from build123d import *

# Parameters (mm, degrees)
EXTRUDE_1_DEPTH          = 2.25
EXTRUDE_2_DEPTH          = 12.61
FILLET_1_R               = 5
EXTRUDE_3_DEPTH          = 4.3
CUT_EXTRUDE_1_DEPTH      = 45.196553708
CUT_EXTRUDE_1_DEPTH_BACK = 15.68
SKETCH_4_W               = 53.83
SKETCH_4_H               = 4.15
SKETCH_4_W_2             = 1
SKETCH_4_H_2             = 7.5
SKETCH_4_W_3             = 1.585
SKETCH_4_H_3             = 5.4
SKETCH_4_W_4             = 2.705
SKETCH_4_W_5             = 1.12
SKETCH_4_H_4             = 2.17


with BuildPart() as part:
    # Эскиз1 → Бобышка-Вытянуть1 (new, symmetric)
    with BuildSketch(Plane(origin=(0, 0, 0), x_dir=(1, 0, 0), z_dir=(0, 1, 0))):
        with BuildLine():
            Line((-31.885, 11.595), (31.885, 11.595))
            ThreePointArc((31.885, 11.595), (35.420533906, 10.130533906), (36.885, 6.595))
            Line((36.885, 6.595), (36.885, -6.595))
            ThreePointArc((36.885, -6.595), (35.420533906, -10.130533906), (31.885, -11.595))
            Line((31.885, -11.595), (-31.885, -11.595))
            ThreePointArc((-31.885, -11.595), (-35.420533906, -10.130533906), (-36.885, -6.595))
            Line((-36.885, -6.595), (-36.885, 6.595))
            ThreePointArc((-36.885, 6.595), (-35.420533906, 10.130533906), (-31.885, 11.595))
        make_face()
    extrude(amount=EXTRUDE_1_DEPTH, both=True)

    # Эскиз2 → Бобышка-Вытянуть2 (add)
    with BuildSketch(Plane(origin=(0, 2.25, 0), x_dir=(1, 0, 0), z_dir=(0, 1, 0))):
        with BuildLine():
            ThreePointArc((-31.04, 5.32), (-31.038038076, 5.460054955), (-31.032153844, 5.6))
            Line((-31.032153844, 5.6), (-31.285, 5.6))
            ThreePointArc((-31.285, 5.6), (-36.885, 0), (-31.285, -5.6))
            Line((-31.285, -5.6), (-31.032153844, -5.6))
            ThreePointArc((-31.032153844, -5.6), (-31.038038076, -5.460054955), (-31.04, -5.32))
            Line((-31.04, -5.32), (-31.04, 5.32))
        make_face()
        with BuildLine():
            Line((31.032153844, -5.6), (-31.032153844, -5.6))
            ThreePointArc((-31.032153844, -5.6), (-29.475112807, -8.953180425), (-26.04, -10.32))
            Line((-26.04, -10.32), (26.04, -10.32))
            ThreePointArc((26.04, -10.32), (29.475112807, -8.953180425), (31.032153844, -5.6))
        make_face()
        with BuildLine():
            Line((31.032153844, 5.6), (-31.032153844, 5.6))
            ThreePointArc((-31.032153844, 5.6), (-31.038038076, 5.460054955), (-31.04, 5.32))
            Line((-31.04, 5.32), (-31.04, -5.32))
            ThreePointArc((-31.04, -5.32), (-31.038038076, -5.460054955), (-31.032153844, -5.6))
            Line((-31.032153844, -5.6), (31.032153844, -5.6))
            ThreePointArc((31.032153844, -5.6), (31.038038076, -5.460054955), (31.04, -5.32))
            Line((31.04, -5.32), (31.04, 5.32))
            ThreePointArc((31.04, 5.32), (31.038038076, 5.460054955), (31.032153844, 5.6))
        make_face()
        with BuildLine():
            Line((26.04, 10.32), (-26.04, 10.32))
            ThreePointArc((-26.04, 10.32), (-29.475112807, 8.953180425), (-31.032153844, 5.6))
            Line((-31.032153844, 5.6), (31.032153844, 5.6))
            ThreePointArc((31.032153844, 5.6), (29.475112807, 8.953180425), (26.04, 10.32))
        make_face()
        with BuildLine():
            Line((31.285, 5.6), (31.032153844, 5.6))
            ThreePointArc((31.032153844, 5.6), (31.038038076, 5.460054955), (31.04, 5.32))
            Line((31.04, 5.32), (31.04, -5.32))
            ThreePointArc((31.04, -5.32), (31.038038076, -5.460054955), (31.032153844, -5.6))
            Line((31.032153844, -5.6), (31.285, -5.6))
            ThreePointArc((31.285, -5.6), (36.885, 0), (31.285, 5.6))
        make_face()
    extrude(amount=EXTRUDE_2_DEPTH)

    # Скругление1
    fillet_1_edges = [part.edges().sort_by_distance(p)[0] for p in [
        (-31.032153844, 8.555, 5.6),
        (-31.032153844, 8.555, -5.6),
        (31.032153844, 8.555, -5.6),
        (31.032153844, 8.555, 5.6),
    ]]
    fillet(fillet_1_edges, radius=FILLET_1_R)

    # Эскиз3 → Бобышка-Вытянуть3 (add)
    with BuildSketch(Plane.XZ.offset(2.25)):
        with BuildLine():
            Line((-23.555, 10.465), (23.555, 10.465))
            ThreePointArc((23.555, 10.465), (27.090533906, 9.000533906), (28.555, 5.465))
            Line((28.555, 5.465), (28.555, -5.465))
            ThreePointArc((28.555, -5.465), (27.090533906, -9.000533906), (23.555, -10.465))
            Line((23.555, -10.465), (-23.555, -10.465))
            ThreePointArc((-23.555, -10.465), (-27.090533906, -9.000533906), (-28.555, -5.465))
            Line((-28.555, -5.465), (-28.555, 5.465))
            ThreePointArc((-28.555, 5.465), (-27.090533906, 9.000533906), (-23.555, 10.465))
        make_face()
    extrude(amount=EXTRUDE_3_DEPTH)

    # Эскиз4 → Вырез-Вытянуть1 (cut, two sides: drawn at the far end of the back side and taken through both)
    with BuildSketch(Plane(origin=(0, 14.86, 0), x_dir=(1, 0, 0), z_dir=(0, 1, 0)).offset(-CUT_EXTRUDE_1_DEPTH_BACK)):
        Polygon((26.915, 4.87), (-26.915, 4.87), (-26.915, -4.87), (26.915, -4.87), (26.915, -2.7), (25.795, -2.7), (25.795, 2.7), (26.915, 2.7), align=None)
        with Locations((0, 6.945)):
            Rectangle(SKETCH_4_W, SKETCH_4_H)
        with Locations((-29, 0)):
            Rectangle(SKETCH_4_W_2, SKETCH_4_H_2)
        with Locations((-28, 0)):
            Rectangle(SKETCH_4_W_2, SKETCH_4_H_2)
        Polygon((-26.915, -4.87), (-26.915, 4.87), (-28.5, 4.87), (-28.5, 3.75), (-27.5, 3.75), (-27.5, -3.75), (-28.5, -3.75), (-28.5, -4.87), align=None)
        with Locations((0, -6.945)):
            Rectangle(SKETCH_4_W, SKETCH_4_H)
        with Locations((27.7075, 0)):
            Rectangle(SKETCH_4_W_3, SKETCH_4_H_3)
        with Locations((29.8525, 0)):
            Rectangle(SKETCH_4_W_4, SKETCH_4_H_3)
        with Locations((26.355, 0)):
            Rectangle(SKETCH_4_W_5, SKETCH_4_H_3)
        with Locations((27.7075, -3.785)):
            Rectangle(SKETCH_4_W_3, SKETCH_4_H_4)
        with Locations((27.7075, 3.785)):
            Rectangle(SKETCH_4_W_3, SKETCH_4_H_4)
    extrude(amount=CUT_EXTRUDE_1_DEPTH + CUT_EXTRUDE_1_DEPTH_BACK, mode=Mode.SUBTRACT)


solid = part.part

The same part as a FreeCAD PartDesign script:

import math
import FreeCAD as App
import Part
import Sketcher
from FreeCAD import Vector


def edges_at(feature, points):
    """Names of the edges that pass closest to the given points."""
    edges = feature.Shape.Edges
    near = lambda p: min(range(len(edges)), key=lambda i: edges[i].distToShape(Part.Vertex(*p))[0])
    return sorted({f"Edge{near(p) + 1}" for p in points})

doc = App.newDocument("Part")
body = doc.addObject("PartDesign::Body", "Body")

sketch1 = body.newObject("Sketcher::SketchObject", "Sketch")
sketch1.AttachmentSupport = (doc.getObject("XZ_Plane"), [""])
sketch1.MapMode = "FlatFace"
sketch1.addGeometry(Part.LineSegment(Vector(31.885, -11.595, 0), Vector(-31.885, -11.595, 0)), False)
sketch1.addGeometry(Part.ArcOfCircle(Part.Circle(Vector(-31.885, -6.595, 0), Vector(0, 0, 1), 5), math.radians(180), math.radians(270)), False)
sketch1.addGeometry(Part.LineSegment(Vector(-36.885, -6.595, 0), Vector(-36.885, 6.595, 0)), False)
sketch1.addGeometry(Part.ArcOfCircle(Part.Circle(Vector(-31.885, 6.595, 0), Vector(0, 0, 1), 5), math.radians(90), math.radians(180)), False)
sketch1.addGeometry(Part.LineSegment(Vector(-31.885, 11.595, 0), Vector(31.885, 11.595, 0)), False)
sketch1.addGeometry(Part.ArcOfCircle(Part.Circle(Vector(31.885, 6.595, 0), Vector(0, 0, 1), 5), math.radians(0), math.radians(90)), False)
sketch1.addGeometry(Part.LineSegment(Vector(36.885, 6.595, 0), Vector(36.885, -6.595, 0)), False)
sketch1.addGeometry(Part.ArcOfCircle(Part.Circle(Vector(31.885, -6.595, 0), Vector(0, 0, 1), 5), math.radians(-90), math.radians(0)), False)
sketch1.addConstraint(Sketcher.Constraint("Tangent", 0, 2, 1, 2))
sketch1.addConstraint(Sketcher.Constraint("Tangent", 1, 1, 2, 1))
sketch1.addConstraint(Sketcher.Constraint("Tangent", 2, 2, 3, 2))
sketch1.addConstraint(Sketcher.Constraint("Tangent", 3, 1, 4, 1))
sketch1.addConstraint(Sketcher.Constraint("Tangent", 4, 2, 5, 2))
sketch1.addConstraint(Sketcher.Constraint("Tangent", 5, 1, 6, 1))
sketch1.addConstraint(Sketcher.Constraint("Tangent", 6, 2, 7, 2))
sketch1.addConstraint(Sketcher.Constraint("Tangent", 7, 1, 0, 1))
sketch1.addConstraint(Sketcher.Constraint("Horizontal", 0))
sketch1.addConstraint(Sketcher.Constraint("Vertical", 2))
sketch1.addConstraint(Sketcher.Constraint("Horizontal", 4))
sketch1.addConstraint(Sketcher.Constraint("Vertical", 6))
sketch1.addConstraint(Sketcher.Constraint("Equal", 1, 3))
sketch1.addConstraint(Sketcher.Constraint("Equal", 3, 5))
sketch1.addConstraint(Sketcher.Constraint("Equal", 5, 7))
sketch1.addConstraint(Sketcher.Constraint("Symmetric", 1, 3, 5, 3, -1, 1))
sketch1.addConstraint(Sketcher.Constraint("Radius", 1, 5.0))
sketch1.addConstraint(Sketcher.Constraint("DistanceX", 0, 2, 0, 1, 63.77))
sketch1.addConstraint(Sketcher.Constraint("DistanceY", 2, 1, 2, 2, 13.19))
pad1 = body.newObject("PartDesign::Pad", "Pad")
pad1.Profile = sketch1
pad1.Length = 4.5
pad1.Midplane = True

sketch2 = body.newObject("Sketcher::SketchObject", "Sketch001")
sketch2.AttachmentSupport = (doc.getObject("XZ_Plane"), [""])
sketch2.MapMode = "FlatFace"
sketch2.AttachmentOffset = App.Placement(Vector(0, 0, -2.25), App.Rotation())
sketch2.addGeometry(Part.ArcOfCircle(Part.Circle(Vector(-31.285, 0, 0), Vector(0, 0, 1), 5.6), math.radians(90), math.radians(270)), False)
sketch2.addGeometry(Part.LineSegment(Vector(-31.285, 5.6, 0), Vector(-31.032154, 5.6, 0)), False)
sketch2.addGeometry(Part.ArcOfCircle(Part.Circle(Vector(-26.04, 5.32, 0), Vector(0, 0, 1), 5), math.radians(90), math.radians(176.789757)), False)
sketch2.addGeometry(Part.LineSegment(Vector(-26.04, 10.32, 0), Vector(26.04, 10.32, 0)), False)
sketch2.addGeometry(Part.ArcOfCircle(Part.Circle(Vector(26.04, 5.32, 0), Vector(0, 0, 1), 5), math.radians(3.210243), math.radians(90)), False)
sketch2.addGeometry(Part.LineSegment(Vector(31.032154, 5.6, 0), Vector(31.285, 5.6, 0)), False)
sketch2.addGeometry(Part.ArcOfCircle(Part.Circle(Vector(31.285, 0, 0), Vector(0, 0, 1), 5.6), math.radians(-90), math.radians(90)), False)
sketch2.addGeometry(Part.LineSegment(Vector(31.285, -5.6, 0), Vector(31.032154, -5.6, 0)), False)
sketch2.addGeometry(Part.ArcOfCircle(Part.Circle(Vector(26.04, -5.32, 0), Vector(0, 0, 1), 5), math.radians(-90), math.radians(-3.210243)), False)
sketch2.addGeometry(Part.LineSegment(Vector(26.04, -10.32, 0), Vector(-26.04, -10.32, 0)), False)
sketch2.addGeometry(Part.ArcOfCircle(Part.Circle(Vector(-26.04, -5.32, 0), Vector(0, 0, 1), 5), math.radians(-176.789757), math.radians(-90)), False)
sketch2.addGeometry(Part.LineSegment(Vector(-31.032154, -5.6, 0), Vector(-31.285, -5.6, 0)), False)
sketch2.addConstraint(Sketcher.Constraint("Tangent", 0, 1, 1, 1))
sketch2.addConstraint(Sketcher.Constraint("Coincident", 1, 2, 2, 2))
sketch2.addConstraint(Sketcher.Constraint("Tangent", 2, 1, 3, 1))
sketch2.addConstraint(Sketcher.Constraint("Tangent", 3, 2, 4, 2))
sketch2.addConstraint(Sketcher.Constraint("Coincident", 4, 1, 5, 1))
sketch2.addConstraint(Sketcher.Constraint("Tangent", 5, 2, 6, 2))
sketch2.addConstraint(Sketcher.Constraint("Tangent", 6, 1, 7, 1))
sketch2.addConstraint(Sketcher.Constraint("Coincident", 7, 2, 8, 2))
sketch2.addConstraint(Sketcher.Constraint("Tangent", 8, 1, 9, 1))
sketch2.addConstraint(Sketcher.Constraint("Tangent", 9, 2, 10, 2))
sketch2.addConstraint(Sketcher.Constraint("Coincident", 10, 1, 11, 1))
sketch2.addConstraint(Sketcher.Constraint("Tangent", 11, 2, 0, 2))
sketch2.addConstraint(Sketcher.Constraint("Horizontal", 1))
sketch2.addConstraint(Sketcher.Constraint("Horizontal", 3))
sketch2.addConstraint(Sketcher.Constraint("Horizontal", 5))
sketch2.addConstraint(Sketcher.Constraint("Horizontal", 7))
sketch2.addConstraint(Sketcher.Constraint("Horizontal", 9))
sketch2.addConstraint(Sketcher.Constraint("Horizontal", 11))
sketch2.addConstraint(Sketcher.Constraint("Equal", 2, 4))
sketch2.addConstraint(Sketcher.Constraint("Equal", 0, 6))
sketch2.addConstraint(Sketcher.Constraint("Equal", 4, 8))
sketch2.addConstraint(Sketcher.Constraint("Equal", 8, 10))
sketch2.addConstraint(Sketcher.Constraint("Symmetric", 0, 3, 6, 3, -1, 1))
sketch2.addConstraint(Sketcher.Constraint("Symmetric", 2, 3, 8, 3, -1, 1))
sketch2.addConstraint(Sketcher.Constraint("Symmetric", 1, 2, 4, 1, -2))
sketch2.addConstraint(Sketcher.Constraint("Vertical", 2, 3, 10, 3))
sketch2.addConstraint(Sketcher.Constraint("Radius", 2, 5.0))
sketch2.addConstraint(Sketcher.Constraint("Radius", 0, 5.6))
sketch2.addConstraint(Sketcher.Constraint("DistanceX", 3, 1, 3, 2, 52.08))
sketch2.addConstraint(Sketcher.Constraint("DistanceY", -1, 1, 2, 3, 5.32))
sketch2.addConstraint(Sketcher.Constraint("DistanceX", 0, 3, 6, 3, 62.57))
pad2 = body.newObject("PartDesign::Pad", "Pad001")
pad2.Profile = sketch2
pad2.Length = 12.61
pad2.Reversed = True
doc.recompute()

fillet = body.newObject("PartDesign::Fillet", "Fillet")
fillet.Base = (pad2, edges_at(pad2, [
    (-31.032, 8.555, 5.6),
    (-31.032, 8.555, -5.6),
    (31.032, 8.555, -5.6),
    (31.032, 8.555, 5.6),
]))
fillet.Radius = 5

sketch3 = body.newObject("Sketcher::SketchObject", "Sketch002")
sketch3.AttachmentSupport = (doc.getObject("XZ_Plane"), [""])
sketch3.MapMode = "FlatFace"
sketch3.AttachmentOffset = App.Placement(Vector(0, 0, 2.25), App.Rotation())
sketch3.addGeometry(Part.LineSegment(Vector(23.555, 10.465, 0), Vector(-23.555, 10.465, 0)), False)
sketch3.addGeometry(Part.ArcOfCircle(Part.Circle(Vector(-23.555, 5.465, 0), Vector(0, 0, 1), 5), math.radians(90), math.radians(180)), False)
sketch3.addGeometry(Part.LineSegment(Vector(-28.555, 5.465, 0), Vector(-28.555, -5.465, 0)), False)
sketch3.addGeometry(Part.ArcOfCircle(Part.Circle(Vector(-23.555, -5.465, 0), Vector(0, 0, 1), 5), math.radians(180), math.radians(270)), False)
sketch3.addGeometry(Part.LineSegment(Vector(-23.555, -10.465, 0), Vector(23.555, -10.465, 0)), False)
sketch3.addGeometry(Part.ArcOfCircle(Part.Circle(Vector(23.555, -5.465, 0), Vector(0, 0, 1), 5), math.radians(-90), math.radians(0)), False)
sketch3.addGeometry(Part.LineSegment(Vector(28.555, -5.465, 0), Vector(28.555, 5.465, 0)), False)
sketch3.addGeometry(Part.ArcOfCircle(Part.Circle(Vector(23.555, 5.465, 0), Vector(0, 0, 1), 5), math.radians(0), math.radians(90)), False)
sketch3.addConstraint(Sketcher.Constraint("Tangent", 0, 2, 1, 1))
sketch3.addConstraint(Sketcher.Constraint("Tangent", 1, 2, 2, 1))
sketch3.addConstraint(Sketcher.Constraint("Tangent", 2, 2, 3, 1))
sketch3.addConstraint(Sketcher.Constraint("Tangent", 3, 2, 4, 1))
sketch3.addConstraint(Sketcher.Constraint("Tangent", 4, 2, 5, 1))
sketch3.addConstraint(Sketcher.Constraint("Tangent", 5, 2, 6, 1))
sketch3.addConstraint(Sketcher.Constraint("Tangent", 6, 2, 7, 1))
sketch3.addConstraint(Sketcher.Constraint("Tangent", 7, 2, 0, 1))
sketch3.addConstraint(Sketcher.Constraint("Horizontal", 0))
sketch3.addConstraint(Sketcher.Constraint("Vertical", 2))
sketch3.addConstraint(Sketcher.Constraint("Horizontal", 4))
sketch3.addConstraint(Sketcher.Constraint("Vertical", 6))
sketch3.addConstraint(Sketcher.Constraint("Equal", 1, 3))
sketch3.addConstraint(Sketcher.Constraint("Equal", 3, 5))
sketch3.addConstraint(Sketcher.Constraint("Equal", 5, 7))
sketch3.addConstraint(Sketcher.Constraint("Symmetric", 1, 3, 5, 3, -1, 1))
sketch3.addConstraint(Sketcher.Constraint("Radius", 1, 5.0))
sketch3.addConstraint(Sketcher.Constraint("DistanceX", 0, 2, 0, 1, 47.11))
sketch3.addConstraint(Sketcher.Constraint("DistanceY", 2, 2, 2, 1, 10.93))
pad3 = body.newObject("PartDesign::Pad", "Pad002")
pad3.Profile = sketch3
pad3.Length = 4.3

sketch4 = body.newObject("Sketcher::SketchObject", "Sketch003")
sketch4.AttachmentSupport = (doc.getObject("XZ_Plane"), [""])
sketch4.MapMode = "FlatFace"
sketch4.AttachmentOffset = App.Placement(Vector(0, 0, -14.86), App.Rotation())
sketch4.addGeometry(Part.LineSegment(Vector(26.915, -4.87, 0), Vector(26.915, -9.02, 0)), False)
sketch4.addGeometry(Part.LineSegment(Vector(26.915, -9.02, 0), Vector(-26.915, -9.02, 0)), False)
sketch4.addGeometry(Part.LineSegment(Vector(-26.915, -9.02, 0), Vector(-26.915, -4.87, 0)), False)
sketch4.addGeometry(Part.LineSegment(Vector(-26.915, -4.87, 0), Vector(-28.5, -4.87, 0)), False)
sketch4.addGeometry(Part.LineSegment(Vector(-28.5, -4.87, 0), Vector(-28.5, -3.75, 0)), False)
sketch4.addGeometry(Part.LineSegment(Vector(-28.5, -3.75, 0), Vector(-29.5, -3.75, 0)), False)
sketch4.addGeometry(Part.LineSegment(Vector(-29.5, -3.75, 0), Vector(-29.5, 3.75, 0)), False)
sketch4.addGeometry(Part.LineSegment(Vector(-29.5, 3.75, 0), Vector(-28.5, 3.75, 0)), False)
sketch4.addGeometry(Part.LineSegment(Vector(-28.5, 3.75, 0), Vector(-28.5, 4.87, 0)), False)
sketch4.addGeometry(Part.LineSegment(Vector(-28.5, 4.87, 0), Vector(-26.915, 4.87, 0)), False)
sketch4.addGeometry(Part.LineSegment(Vector(-26.915, 4.87, 0), Vector(-26.915, 9.02, 0)), False)
sketch4.addGeometry(Part.LineSegment(Vector(-26.915, 9.02, 0), Vector(26.915, 9.02, 0)), False)
sketch4.addGeometry(Part.LineSegment(Vector(26.915, 9.02, 0), Vector(26.915, 4.87, 0)), False)
sketch4.addGeometry(Part.LineSegment(Vector(26.915, 4.87, 0), Vector(28.5, 4.87, 0)), False)
sketch4.addGeometry(Part.LineSegment(Vector(28.5, 4.87, 0), Vector(28.5, 2.7, 0)), False)
sketch4.addGeometry(Part.LineSegment(Vector(28.5, 2.7, 0), Vector(31.205, 2.7, 0)), False)
sketch4.addGeometry(Part.LineSegment(Vector(31.205, 2.7, 0), Vector(31.205, -2.7, 0)), False)
sketch4.addGeometry(Part.LineSegment(Vector(31.205, -2.7, 0), Vector(28.5, -2.7, 0)), False)
sketch4.addGeometry(Part.LineSegment(Vector(28.5, -2.7, 0), Vector(28.5, -4.87, 0)), False)
sketch4.addGeometry(Part.LineSegment(Vector(28.5, -4.87, 0), Vector(26.915, -4.87, 0)), False)
sketch4.addConstraint(Sketcher.Constraint("Coincident", 0, 2, 1, 1))
sketch4.addConstraint(Sketcher.Constraint("Coincident", 1, 2, 2, 1))
sketch4.addConstraint(Sketcher.Constraint("Coincident", 2, 2, 3, 1))
sketch4.addConstraint(Sketcher.Constraint("Coincident", 3, 2, 4, 1))
sketch4.addConstraint(Sketcher.Constraint("Coincident", 4, 2, 5, 1))
sketch4.addConstraint(Sketcher.Constraint("Coincident", 5, 2, 6, 1))
sketch4.addConstraint(Sketcher.Constraint("Coincident", 6, 2, 7, 1))
sketch4.addConstraint(Sketcher.Constraint("Coincident", 7, 2, 8, 1))
sketch4.addConstraint(Sketcher.Constraint("Coincident", 8, 2, 9, 1))
sketch4.addConstraint(Sketcher.Constraint("Coincident", 9, 2, 10, 1))
sketch4.addConstraint(Sketcher.Constraint("Coincident", 10, 2, 11, 1))
sketch4.addConstraint(Sketcher.Constraint("Coincident", 11, 2, 12, 1))
sketch4.addConstraint(Sketcher.Constraint("Coincident", 12, 2, 13, 1))
sketch4.addConstraint(Sketcher.Constraint("Coincident", 13, 2, 14, 1))
sketch4.addConstraint(Sketcher.Constraint("Coincident", 14, 2, 15, 1))
sketch4.addConstraint(Sketcher.Constraint("Coincident", 15, 2, 16, 1))
sketch4.addConstraint(Sketcher.Constraint("Coincident", 16, 2, 17, 1))
sketch4.addConstraint(Sketcher.Constraint("Coincident", 17, 2, 18, 1))
sketch4.addConstraint(Sketcher.Constraint("Coincident", 18, 2, 19, 1))
sketch4.addConstraint(Sketcher.Constraint("Coincident", 19, 2, 0, 1))
sketch4.addConstraint(Sketcher.Constraint("Vertical", 0))
sketch4.addConstraint(Sketcher.Constraint("Horizontal", 1))
sketch4.addConstraint(Sketcher.Constraint("Vertical", 2))
sketch4.addConstraint(Sketcher.Constraint("Horizontal", 3))
sketch4.addConstraint(Sketcher.Constraint("Vertical", 4))
sketch4.addConstraint(Sketcher.Constraint("Horizontal", 5))
sketch4.addConstraint(Sketcher.Constraint("Vertical", 6))
sketch4.addConstraint(Sketcher.Constraint("Horizontal", 7))
sketch4.addConstraint(Sketcher.Constraint("Vertical", 8))
sketch4.addConstraint(Sketcher.Constraint("Horizontal", 9))
sketch4.addConstraint(Sketcher.Constraint("Vertical", 10))
sketch4.addConstraint(Sketcher.Constraint("Horizontal", 11))
sketch4.addConstraint(Sketcher.Constraint("Vertical", 12))
sketch4.addConstraint(Sketcher.Constraint("Horizontal", 13))
sketch4.addConstraint(Sketcher.Constraint("Vertical", 14))
sketch4.addConstraint(Sketcher.Constraint("Horizontal", 15))
sketch4.addConstraint(Sketcher.Constraint("Vertical", 16))
sketch4.addConstraint(Sketcher.Constraint("Horizontal", 17))
sketch4.addConstraint(Sketcher.Constraint("Vertical", 18))
sketch4.addConstraint(Sketcher.Constraint("Horizontal", 19))
sketch4.addConstraint(Sketcher.Constraint("Symmetric", 0, 2, 10, 2, -1, 1))
sketch4.addConstraint(Sketcher.Constraint("Symmetric", 2, 2, 12, 2, -1, 1))
sketch4.addConstraint(Sketcher.Constraint("Symmetric", 8, 2, 18, 2, -1, 1))
sketch4.addConstraint(Sketcher.Constraint("Symmetric", 9, 2, 12, 2, -2))
sketch4.addConstraint(Sketcher.Constraint("Symmetric", 4, 2, 7, 2, -1))
sketch4.addConstraint(Sketcher.Constraint("Symmetric", 14, 2, 17, 2, -1))
sketch4.addConstraint(Sketcher.Constraint("DistanceX", 5, 2, 5, 1, 1.0))
sketch4.addConstraint(Sketcher.Constraint("DistanceY", 6, 1, 6, 2, 7.5))
sketch4.addConstraint(Sketcher.Constraint("DistanceY", 16, 2, 16, 1, 5.4))
sketch4.addConstraint(Sketcher.Constraint("DistanceX", 1, 2, 1, 1, 53.83))
sketch4.addConstraint(Sketcher.Constraint("DistanceY", 0, 2, 0, 1, 4.15))
sketch4.addConstraint(Sketcher.Constraint("DistanceY", 4, 1, 4, 2, 1.12))
sketch4.addConstraint(Sketcher.Constraint("DistanceX", 3, 2, -1, 1, 28.5))
sketch4.addConstraint(Sketcher.Constraint("DistanceX", 15, 1, 15, 2, 2.705))
pocket1 = body.newObject("PartDesign::Pocket", "Pocket")
pocket1.Profile = sketch4
pocket1.Type = "TwoLengths"
pocket1.Length = 45.196554
pocket1.Length2 = 15.68

doc.recompute()
